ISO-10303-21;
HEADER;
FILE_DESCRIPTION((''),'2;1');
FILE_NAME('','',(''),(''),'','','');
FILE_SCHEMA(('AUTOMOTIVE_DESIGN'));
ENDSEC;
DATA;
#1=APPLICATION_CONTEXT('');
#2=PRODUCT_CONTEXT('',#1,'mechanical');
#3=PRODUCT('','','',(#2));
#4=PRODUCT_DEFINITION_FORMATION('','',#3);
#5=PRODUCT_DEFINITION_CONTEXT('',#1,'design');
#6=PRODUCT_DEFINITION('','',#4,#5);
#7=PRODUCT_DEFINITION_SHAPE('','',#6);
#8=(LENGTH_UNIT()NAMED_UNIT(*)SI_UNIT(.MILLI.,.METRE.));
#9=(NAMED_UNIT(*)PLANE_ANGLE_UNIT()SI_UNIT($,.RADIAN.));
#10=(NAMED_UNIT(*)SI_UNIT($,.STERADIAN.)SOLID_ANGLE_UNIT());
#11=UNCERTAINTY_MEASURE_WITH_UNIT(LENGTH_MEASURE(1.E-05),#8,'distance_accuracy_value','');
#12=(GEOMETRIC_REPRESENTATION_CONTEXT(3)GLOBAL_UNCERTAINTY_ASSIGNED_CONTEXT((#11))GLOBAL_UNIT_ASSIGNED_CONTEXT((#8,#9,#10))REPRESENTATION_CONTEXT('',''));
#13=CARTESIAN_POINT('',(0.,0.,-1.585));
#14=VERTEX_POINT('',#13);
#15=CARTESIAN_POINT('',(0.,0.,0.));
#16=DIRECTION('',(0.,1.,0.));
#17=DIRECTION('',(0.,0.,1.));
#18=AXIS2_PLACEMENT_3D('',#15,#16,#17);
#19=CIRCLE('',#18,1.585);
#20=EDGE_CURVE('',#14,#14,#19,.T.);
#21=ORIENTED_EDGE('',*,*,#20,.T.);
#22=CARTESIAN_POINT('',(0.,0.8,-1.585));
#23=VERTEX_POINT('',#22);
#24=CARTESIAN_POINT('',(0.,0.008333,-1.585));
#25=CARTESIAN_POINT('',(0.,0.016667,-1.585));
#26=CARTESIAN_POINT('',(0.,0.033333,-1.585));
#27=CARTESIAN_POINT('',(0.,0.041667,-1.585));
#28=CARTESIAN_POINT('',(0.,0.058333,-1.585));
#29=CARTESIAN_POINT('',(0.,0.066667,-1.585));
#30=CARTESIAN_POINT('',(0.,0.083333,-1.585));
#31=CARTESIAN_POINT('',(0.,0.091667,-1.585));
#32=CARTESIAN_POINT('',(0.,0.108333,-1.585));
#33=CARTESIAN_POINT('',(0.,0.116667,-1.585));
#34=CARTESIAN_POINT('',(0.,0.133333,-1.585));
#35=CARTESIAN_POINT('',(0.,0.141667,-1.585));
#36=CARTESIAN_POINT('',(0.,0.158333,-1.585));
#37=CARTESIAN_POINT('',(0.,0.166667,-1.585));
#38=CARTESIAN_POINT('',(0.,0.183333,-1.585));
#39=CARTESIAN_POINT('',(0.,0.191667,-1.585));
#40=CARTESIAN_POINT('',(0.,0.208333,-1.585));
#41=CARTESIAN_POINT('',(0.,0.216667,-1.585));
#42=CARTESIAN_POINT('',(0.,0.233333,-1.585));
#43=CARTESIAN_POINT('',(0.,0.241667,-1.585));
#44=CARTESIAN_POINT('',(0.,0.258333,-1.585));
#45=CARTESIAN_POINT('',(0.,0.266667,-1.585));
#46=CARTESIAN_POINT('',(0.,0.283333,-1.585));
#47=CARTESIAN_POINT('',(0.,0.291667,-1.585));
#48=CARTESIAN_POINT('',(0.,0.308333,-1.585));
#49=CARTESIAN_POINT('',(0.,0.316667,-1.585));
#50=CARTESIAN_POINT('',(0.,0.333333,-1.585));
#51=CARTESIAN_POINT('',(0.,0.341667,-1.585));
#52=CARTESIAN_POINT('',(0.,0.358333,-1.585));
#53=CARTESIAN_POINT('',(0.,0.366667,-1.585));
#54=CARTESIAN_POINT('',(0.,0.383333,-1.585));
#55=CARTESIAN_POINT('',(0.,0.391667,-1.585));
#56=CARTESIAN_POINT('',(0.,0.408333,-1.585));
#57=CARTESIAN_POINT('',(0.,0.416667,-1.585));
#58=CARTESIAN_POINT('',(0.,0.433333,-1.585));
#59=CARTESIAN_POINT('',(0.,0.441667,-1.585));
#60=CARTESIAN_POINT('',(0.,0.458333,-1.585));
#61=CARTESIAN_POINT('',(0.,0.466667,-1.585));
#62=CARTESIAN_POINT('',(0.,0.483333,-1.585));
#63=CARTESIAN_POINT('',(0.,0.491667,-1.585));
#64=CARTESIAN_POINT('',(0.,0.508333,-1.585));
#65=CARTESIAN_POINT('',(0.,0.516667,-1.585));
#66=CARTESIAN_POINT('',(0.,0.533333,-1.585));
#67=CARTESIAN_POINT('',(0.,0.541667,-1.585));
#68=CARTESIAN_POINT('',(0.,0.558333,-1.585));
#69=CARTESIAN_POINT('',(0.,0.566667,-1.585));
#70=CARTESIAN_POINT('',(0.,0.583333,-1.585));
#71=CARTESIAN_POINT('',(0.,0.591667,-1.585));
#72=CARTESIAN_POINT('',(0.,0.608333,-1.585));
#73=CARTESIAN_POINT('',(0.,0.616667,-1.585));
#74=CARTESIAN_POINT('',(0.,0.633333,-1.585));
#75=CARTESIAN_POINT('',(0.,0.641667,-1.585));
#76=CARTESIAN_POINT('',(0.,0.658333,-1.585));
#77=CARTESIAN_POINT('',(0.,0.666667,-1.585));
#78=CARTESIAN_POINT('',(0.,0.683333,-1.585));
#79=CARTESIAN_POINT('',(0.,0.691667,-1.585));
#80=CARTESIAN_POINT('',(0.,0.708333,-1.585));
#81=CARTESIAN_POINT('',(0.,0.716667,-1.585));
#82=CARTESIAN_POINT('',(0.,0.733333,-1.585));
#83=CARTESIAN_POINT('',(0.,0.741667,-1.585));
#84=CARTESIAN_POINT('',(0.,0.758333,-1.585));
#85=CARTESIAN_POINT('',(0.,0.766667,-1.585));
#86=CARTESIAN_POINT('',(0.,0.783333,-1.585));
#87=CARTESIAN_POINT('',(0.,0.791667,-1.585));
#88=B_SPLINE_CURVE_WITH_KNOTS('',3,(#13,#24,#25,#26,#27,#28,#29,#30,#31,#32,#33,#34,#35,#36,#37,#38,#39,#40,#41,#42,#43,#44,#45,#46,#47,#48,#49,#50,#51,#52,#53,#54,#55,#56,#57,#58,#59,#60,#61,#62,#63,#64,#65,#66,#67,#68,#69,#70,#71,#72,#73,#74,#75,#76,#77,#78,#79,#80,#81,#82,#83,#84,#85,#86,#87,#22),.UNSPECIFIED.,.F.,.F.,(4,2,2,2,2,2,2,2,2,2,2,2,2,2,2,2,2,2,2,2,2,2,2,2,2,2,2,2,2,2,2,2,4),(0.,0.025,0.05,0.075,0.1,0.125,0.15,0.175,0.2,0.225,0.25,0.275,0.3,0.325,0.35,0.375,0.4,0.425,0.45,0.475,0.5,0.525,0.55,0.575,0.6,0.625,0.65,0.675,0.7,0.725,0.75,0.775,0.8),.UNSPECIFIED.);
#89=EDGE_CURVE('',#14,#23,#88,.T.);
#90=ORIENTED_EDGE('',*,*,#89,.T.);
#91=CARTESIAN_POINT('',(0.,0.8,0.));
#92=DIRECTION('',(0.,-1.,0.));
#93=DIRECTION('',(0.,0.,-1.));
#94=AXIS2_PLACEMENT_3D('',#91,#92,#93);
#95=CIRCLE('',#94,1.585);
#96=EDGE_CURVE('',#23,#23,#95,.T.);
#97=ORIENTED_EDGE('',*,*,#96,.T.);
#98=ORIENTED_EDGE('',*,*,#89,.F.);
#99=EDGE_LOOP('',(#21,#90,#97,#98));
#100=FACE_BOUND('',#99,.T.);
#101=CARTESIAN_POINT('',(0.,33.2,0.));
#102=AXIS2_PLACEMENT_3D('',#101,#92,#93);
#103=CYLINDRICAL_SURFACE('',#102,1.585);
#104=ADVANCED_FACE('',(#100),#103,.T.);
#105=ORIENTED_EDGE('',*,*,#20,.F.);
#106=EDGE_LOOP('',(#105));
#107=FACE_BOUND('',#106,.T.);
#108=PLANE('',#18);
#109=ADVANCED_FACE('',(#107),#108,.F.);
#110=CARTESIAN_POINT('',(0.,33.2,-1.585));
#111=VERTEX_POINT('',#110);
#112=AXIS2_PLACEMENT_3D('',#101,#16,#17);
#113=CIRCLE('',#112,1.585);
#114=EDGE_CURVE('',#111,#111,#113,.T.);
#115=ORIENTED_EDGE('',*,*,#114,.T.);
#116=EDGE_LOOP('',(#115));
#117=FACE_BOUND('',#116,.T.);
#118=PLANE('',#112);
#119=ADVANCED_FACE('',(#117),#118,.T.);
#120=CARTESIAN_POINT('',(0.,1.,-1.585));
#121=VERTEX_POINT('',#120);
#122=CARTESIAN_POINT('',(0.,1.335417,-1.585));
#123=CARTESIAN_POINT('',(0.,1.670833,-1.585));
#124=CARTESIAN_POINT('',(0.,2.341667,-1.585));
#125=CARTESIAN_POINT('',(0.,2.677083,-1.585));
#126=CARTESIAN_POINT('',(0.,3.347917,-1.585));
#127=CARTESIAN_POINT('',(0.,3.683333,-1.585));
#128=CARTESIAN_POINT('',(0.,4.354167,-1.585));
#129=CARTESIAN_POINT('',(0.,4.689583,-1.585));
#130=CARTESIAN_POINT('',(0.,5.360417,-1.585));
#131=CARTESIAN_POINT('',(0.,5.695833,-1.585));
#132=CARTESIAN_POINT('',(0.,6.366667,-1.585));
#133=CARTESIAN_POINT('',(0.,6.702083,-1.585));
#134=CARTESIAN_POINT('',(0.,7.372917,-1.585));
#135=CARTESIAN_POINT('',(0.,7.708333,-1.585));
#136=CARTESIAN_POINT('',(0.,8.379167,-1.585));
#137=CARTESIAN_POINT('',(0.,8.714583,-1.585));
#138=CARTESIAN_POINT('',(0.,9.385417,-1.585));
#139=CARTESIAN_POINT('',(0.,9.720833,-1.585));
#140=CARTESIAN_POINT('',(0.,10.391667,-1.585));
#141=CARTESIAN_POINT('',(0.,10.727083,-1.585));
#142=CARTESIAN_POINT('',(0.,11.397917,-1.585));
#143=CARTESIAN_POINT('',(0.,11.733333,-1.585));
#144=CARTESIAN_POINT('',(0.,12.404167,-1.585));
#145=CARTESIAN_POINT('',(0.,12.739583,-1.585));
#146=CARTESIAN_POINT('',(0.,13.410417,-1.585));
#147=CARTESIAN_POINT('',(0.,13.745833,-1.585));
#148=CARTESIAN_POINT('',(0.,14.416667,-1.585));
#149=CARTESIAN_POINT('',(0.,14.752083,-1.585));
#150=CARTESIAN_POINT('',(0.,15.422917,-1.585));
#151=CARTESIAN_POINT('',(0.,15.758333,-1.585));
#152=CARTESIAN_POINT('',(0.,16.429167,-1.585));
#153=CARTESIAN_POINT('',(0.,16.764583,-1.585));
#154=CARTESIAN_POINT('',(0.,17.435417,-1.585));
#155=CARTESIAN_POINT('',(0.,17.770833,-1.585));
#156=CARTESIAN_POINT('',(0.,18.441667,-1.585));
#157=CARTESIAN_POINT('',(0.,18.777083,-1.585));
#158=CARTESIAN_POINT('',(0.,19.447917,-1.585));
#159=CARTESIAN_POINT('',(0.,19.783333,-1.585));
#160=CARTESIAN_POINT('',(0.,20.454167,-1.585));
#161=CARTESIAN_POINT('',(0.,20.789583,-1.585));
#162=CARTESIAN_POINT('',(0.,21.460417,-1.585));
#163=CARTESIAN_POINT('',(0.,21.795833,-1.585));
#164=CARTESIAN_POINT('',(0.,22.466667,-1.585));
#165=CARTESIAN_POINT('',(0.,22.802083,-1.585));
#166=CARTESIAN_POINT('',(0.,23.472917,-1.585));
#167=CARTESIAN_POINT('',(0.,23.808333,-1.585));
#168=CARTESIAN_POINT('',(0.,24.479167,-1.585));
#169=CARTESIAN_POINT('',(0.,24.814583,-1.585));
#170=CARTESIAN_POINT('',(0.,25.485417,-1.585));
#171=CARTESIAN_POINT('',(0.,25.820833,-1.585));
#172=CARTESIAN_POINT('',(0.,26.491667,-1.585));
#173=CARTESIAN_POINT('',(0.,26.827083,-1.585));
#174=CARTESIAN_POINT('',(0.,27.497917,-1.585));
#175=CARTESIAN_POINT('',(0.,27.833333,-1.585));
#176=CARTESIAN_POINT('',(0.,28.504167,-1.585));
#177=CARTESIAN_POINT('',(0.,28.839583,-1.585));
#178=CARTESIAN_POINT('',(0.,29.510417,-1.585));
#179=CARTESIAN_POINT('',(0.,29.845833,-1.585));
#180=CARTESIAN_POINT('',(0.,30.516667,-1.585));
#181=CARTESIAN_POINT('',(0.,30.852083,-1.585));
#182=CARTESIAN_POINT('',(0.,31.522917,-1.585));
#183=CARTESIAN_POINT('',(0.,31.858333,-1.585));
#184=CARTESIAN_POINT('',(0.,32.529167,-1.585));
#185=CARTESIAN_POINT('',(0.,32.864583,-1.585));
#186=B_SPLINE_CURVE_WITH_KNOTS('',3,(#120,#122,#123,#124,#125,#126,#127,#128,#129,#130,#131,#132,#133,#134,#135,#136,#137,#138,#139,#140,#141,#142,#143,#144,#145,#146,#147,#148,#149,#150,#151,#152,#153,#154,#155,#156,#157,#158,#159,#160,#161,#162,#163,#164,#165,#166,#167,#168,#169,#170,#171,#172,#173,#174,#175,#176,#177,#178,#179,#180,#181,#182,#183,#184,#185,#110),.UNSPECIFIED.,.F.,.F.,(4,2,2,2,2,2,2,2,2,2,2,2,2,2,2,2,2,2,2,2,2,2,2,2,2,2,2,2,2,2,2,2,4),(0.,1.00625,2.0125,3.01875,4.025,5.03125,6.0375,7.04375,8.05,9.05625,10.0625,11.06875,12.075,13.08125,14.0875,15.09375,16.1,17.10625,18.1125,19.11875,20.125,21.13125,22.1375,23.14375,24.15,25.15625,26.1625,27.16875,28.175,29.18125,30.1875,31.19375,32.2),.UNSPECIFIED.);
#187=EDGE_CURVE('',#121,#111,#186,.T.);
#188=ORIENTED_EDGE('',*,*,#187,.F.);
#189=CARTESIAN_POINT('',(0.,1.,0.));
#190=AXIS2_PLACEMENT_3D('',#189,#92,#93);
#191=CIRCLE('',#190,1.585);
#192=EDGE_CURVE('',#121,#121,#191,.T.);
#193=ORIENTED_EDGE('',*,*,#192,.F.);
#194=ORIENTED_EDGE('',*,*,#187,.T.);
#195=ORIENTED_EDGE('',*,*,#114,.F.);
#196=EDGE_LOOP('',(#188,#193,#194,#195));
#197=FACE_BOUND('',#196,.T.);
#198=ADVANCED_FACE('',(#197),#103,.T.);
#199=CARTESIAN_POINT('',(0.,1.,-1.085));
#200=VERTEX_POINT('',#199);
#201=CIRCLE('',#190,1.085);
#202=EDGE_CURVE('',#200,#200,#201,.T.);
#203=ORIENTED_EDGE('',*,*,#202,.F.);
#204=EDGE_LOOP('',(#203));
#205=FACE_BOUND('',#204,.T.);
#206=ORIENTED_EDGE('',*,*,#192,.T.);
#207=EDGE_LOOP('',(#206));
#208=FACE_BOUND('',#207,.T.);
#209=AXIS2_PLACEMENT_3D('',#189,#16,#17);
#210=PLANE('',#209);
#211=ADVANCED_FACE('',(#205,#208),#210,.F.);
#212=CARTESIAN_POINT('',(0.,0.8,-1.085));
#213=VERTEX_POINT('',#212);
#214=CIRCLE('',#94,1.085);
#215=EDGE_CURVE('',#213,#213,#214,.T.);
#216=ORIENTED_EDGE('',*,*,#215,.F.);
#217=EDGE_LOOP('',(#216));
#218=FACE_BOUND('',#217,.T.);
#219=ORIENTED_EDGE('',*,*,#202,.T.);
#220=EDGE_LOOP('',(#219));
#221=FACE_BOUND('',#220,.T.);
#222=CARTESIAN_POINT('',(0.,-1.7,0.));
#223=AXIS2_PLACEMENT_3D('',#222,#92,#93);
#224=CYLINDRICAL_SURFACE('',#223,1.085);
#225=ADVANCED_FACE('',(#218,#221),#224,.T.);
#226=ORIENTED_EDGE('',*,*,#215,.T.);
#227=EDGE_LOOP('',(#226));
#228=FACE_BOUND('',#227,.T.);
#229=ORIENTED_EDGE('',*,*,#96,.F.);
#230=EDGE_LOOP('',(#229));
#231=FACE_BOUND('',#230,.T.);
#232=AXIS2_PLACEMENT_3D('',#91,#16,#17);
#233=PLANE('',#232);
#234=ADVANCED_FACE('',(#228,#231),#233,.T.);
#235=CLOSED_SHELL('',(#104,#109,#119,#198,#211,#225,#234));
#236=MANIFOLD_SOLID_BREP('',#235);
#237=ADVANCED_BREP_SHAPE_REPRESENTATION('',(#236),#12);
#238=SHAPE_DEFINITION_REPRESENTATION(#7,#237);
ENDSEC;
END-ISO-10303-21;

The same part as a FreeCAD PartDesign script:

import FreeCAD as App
import Part
import Sketcher

V = App.Vector


def add_polygon(sketch, points):
    """Adds a closed chain of lines whose ends are joined by coincident constraints."""
    first, n = sketch.GeometryCount, len(points)
    for a, b in zip(points, points[1:] + points[:1]):
        sketch.addGeometry(Part.LineSegment(App.Vector(*a, 0), App.Vector(*b, 0)), False)
    for i in range(n):
        sketch.addConstraint(Sketcher.Constraint("Coincident", first + i, 2, first + (i + 1) % n, 1))

doc = App.newDocument("Part")
body = doc.addObject("PartDesign::Body", "Body")

# Sketch on XZ plane
sketch1 = body.newObject("Sketcher::SketchObject", "Sketch")
sketch1.AttachmentSupport = (doc.getObject("XZ_Plane"), [""])
sketch1.MapMode = "FlatFace"
sketch1.addGeometry(Part.Circle(V(0, 0, 0), V(0, 0, 1), 1.6), False)
sketch1.addConstraint(Sketcher.Constraint("Coincident", 0, 3, -1, 1))
sketch1.addConstraint(Sketcher.Constraint("Diameter", 0, 3.17))
pad1 = body.newObject("PartDesign::Pad", "Pad")
pad1.Profile = sketch1
pad1.Length = 33.2
pad1.Reversed = True

# Sketch on XY plane
sketch2 = body.newObject("Sketcher::SketchObject", "Sketch001")
sketch2.AttachmentSupport = (doc.getObject("XY_Plane"), [""])
sketch2.MapMode = "FlatFace"
add_polygon(sketch2, [(1.08, 1), (1.08, 0.8), (1.58, 0.8), (1.58, 1)])  # lines 0-3
sketch2.addConstraint(Sketcher.Constraint("Vertical", 0))
sketch2.addConstraint(Sketcher.Constraint("Horizontal", 1))
sketch2.addConstraint(Sketcher.Constraint("Vertical", 2))
sketch2.addConstraint(Sketcher.Constraint("Horizontal", 3))
sketch2.addConstraint(Sketcher.Constraint("DistanceX", 1, 1, 1, 2, 0.5))
sketch2.addConstraint(Sketcher.Constraint("DistanceY", 0, 2, 0, 1, 0.2))
sketch2.addConstraint(Sketcher.Constraint("DistanceY", -1, 1, 2, 2, 1.0))
sketch2.addConstraint(Sketcher.Constraint("DistanceX", -1, 1, 0, 2, 1.085))
groove = body.newObject("PartDesign::Groove", "Groove")
groove.Profile = sketch2
groove.ReferenceAxis = (sketch2, ["V_Axis"])
groove.Angle = 360

doc.recompute()
